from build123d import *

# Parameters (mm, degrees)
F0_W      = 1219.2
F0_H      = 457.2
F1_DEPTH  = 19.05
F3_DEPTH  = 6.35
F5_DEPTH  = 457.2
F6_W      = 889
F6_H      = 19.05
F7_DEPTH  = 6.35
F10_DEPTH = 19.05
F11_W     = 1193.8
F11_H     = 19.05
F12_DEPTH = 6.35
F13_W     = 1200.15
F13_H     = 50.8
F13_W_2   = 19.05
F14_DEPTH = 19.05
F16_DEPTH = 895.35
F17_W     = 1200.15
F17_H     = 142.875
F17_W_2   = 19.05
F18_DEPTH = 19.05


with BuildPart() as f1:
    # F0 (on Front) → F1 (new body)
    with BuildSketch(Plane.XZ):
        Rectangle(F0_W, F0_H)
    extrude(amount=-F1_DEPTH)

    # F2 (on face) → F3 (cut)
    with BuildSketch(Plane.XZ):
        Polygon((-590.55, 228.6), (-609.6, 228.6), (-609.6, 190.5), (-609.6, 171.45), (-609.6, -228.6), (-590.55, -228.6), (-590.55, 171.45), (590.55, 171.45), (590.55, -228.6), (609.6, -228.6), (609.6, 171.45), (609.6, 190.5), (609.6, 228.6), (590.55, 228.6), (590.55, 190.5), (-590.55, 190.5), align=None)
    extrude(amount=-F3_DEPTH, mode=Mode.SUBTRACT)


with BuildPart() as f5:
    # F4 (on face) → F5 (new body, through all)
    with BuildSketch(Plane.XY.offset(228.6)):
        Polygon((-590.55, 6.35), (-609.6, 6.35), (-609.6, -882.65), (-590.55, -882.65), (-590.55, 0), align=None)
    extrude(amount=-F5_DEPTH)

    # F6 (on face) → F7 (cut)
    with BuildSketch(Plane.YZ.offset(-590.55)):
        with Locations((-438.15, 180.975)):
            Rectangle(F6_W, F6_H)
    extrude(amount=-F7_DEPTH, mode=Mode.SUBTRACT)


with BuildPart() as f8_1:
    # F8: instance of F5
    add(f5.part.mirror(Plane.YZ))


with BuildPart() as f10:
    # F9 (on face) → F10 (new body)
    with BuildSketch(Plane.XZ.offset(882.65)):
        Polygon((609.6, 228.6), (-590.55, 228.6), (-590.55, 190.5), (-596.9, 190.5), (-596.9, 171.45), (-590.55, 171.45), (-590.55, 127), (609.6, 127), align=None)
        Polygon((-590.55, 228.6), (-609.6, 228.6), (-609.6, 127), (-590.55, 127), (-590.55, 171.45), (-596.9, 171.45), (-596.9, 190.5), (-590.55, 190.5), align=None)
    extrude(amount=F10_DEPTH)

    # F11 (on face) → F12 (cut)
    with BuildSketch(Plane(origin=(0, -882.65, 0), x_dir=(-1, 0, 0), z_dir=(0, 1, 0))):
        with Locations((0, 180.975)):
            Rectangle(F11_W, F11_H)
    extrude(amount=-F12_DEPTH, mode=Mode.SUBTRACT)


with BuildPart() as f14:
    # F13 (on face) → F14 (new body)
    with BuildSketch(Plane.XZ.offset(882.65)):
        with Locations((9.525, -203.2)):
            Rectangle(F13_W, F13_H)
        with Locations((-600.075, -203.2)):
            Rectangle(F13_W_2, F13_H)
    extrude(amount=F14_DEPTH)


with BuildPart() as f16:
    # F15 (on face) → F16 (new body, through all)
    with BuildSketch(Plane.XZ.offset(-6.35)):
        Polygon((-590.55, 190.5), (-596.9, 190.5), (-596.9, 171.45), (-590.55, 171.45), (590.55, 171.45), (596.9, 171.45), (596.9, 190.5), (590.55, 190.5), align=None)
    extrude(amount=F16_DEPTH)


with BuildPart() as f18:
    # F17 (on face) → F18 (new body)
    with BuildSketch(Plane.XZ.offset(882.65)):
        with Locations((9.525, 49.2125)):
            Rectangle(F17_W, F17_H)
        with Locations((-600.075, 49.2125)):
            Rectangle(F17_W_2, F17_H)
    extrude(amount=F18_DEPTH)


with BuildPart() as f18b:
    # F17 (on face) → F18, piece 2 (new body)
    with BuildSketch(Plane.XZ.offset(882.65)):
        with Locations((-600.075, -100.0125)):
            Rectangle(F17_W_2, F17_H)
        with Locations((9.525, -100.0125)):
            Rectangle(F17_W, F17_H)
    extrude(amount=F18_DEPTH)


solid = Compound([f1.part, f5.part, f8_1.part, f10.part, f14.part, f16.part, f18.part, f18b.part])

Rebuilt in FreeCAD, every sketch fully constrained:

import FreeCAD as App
import Part
import Sketcher
from FreeCAD import Vector
Q = App.Units.Quantity

doc = App.newDocument("Part")
params = doc.addObject("Spreadsheet::Sheet", "Params")
for row, (alias, value) in enumerate([
    ("sketch1_width", "48 in"),
    ("sketch1_height", "18 in"),
    ("pad1_length", "0.75 in"),
    ("sketch2_height", "18 in"),
    ("sketch2_width", "46.5 in"),
    ("sketch2_height2", "1.5 in"),
    ("sketch2_height3", "15.75 in"),
    ("pocket1_length", "0.25 in"),
    ("sketch3_height", "35 in"),
    ("sketch3_width", "0.75 in"),
    ("pad2_length", "18 in"),
    ("sketch4_width", "35 in"),
    ("sketch4_height", "0.75 in"),
    ("pocket2_length", "0.25 in"),
    ("sketch5_width", "48 in"),
    ("sketch5_height", "4 in"),
    ("pad3_length", "0.75 in"),
    ("sketch6_width", "47 in"),
    ("sketch6_height", "0.75 in"),
    ("pocket3_length", "0.25 in"),
    ("sketch7_width", "48 in"),
    ("sketch7_height", "2 in"),
    ("pad4_length", "0.75 in"),
    ("sketch8_width", "47 in"),
    ("sketch8_height", "0.75 in"),
    ("pad5_length", "35.25 in"),
    ("sketch9_width", "48 in"),
    ("sketch9_height", "5.625 in"),
    ("pad6_length", "0.75 in"),
    ("sketch10_width", "48 in"),
    ("sketch10_height", "5.625 in"),
    ("pad7_length", "0.75 in"),
], start=1):
    params.set(f"A{row}", alias)
    params.set(f"B{row}", "=" + value)
    params.setAlias(f"B{row}", alias)

body = doc.addObject("PartDesign::Body", "Body")

# Sketch on XZ plane
sketch1 = body.newObject("Sketcher::SketchObject", "Sketch")
sketch1.AttachmentSupport = (doc.getObject("XZ_Plane"), [""])
sketch1.MapMode = "FlatFace"
sketch1.addGeometry([
    Part.LineSegment(Vector(-609.6, 228.6, 0), Vector(-609.6, -228.6, 0)),
    Part.LineSegment(Vector(-609.6, -228.6, 0), Vector(609.6, -228.6, 0)),
    Part.LineSegment(Vector(609.6, -228.6, 0), Vector(609.6, 228.6, 0)),
    Part.LineSegment(Vector(609.6, 228.6, 0), Vector(-609.6, 228.6, 0)),
], False)
sketch1.addConstraint([
    Sketcher.Constraint("Coincident", 0, 2, 1, 1),
    Sketcher.Constraint("Coincident", 1, 2, 2, 1),
    Sketcher.Constraint("Coincident", 2, 2, 3, 1),
    Sketcher.Constraint("Coincident", 3, 2, 0, 1),
    Sketcher.Constraint("Vertical", 0),
    Sketcher.Constraint("Horizontal", 1),
    Sketcher.Constraint("Vertical", 2),
    Sketcher.Constraint("Horizontal", 3),
    Sketcher.Constraint("Symmetric", 0, 2, 2, 2, -1, 1),
    Sketcher.Constraint("DistanceX", 1, 1, 1, 2, Q("48 in")),
    Sketcher.Constraint("DistanceY", 0, 2, 0, 1, Q("18 in")),
])
sketch1.setExpression("Constraints[9]", "Params.sketch1_width")
sketch1.setExpression("Constraints[10]", "Params.sketch1_height")
pad1 = body.newObject("PartDesign::Pad", "Pad")
pad1.Profile = sketch1
pad1.setExpression("Length", "Params.pad1_length")
pad1.Reversed = True

# Sketch on XZ plane
sketch2 = body.newObject("Sketcher::SketchObject", "Sketch001")
sketch2.AttachmentSupport = (doc.getObject("XZ_Plane"), [""])
sketch2.MapMode = "FlatFace"
sketch2.addGeometry([
    Part.LineSegment(Vector(-590.55, 228.6, 0), Vector(-609.6, 228.6, 0)),  # 0
    Part.LineSegment(Vector(-609.6, 228.6, 0), Vector(-609.6, -228.6, 0)),  # 1
    Part.LineSegment(Vector(-609.6, -228.6, 0), Vector(-590.55, -228.6, 0)),  # 2
    Part.LineSegment(Vector(-590.55, -228.6, 0), Vector(-590.55, 171.45, 0)),  # 3
    Part.LineSegment(Vector(-590.55, 171.45, 0), Vector(590.55, 171.45, 0)),  # 4
    Part.LineSegment(Vector(590.55, 171.45, 0), Vector(590.55, -228.6, 0)),  # 5
    Part.LineSegment(Vector(590.55, -228.6, 0), Vector(609.6, -228.6, 0)),  # 6
    Part.LineSegment(Vector(609.6, -228.6, 0), Vector(609.6, 228.6, 0)),  # 7
    Part.LineSegment(Vector(609.6, 228.6, 0), Vector(590.55, 228.6, 0)),  # 8
    Part.LineSegment(Vector(590.55, 228.6, 0), Vector(590.55, 190.5, 0)),  # 9
    Part.LineSegment(Vector(590.55, 190.5, 0), Vector(-590.55, 190.5, 0)),  # 10
    Part.LineSegment(Vector(-590.55, 190.5, 0), Vector(-590.55, 228.6, 0)),  # 11
], False)
sketch2.addConstraint([
    Sketcher.Constraint("Coincident", 0, 2, 1, 1),
    Sketcher.Constraint("Coincident", 1, 2, 2, 1),
    Sketcher.Constraint("Coincident", 2, 2, 3, 1),
    Sketcher.Constraint("Coincident", 3, 2, 4, 1),
    Sketcher.Constraint("Coincident", 4, 2, 5, 1),
    Sketcher.Constraint("Coincident", 5, 2, 6, 1),
    Sketcher.Constraint("Coincident", 6, 2, 7, 1),
    Sketcher.Constraint("Coincident", 7, 2, 8, 1),
    Sketcher.Constraint("Coincident", 8, 2, 9, 1),
    Sketcher.Constraint("Coincident", 9, 2, 10, 1),
    Sketcher.Constraint("Coincident", 10, 2, 11, 1),
    Sketcher.Constraint("Coincident", 11, 2, 0, 1),
    Sketcher.Constraint("Horizontal", 0),
    Sketcher.Constraint("Vertical", 1),
    Sketcher.Constraint("Horizontal", 2),
    Sketcher.Constraint("Vertical", 3),
    Sketcher.Constraint("Horizontal", 4),
    Sketcher.Constraint("Vertical", 5),
    Sketcher.Constraint("Horizontal", 6),
    Sketcher.Constraint("Vertical", 7),
    Sketcher.Constraint("Horizontal", 8),
    Sketcher.Constraint("Vertical", 9),
    Sketcher.Constraint("Horizontal", 10),
    Sketcher.Constraint("Vertical", 11),
    Sketcher.Constraint("Symmetric", 0, 2, 6, 2, -1, 1),
    Sketcher.Constraint("Symmetric", 2, 2, 8, 2, -1, 1),
    Sketcher.Constraint("Symmetric", 2, 2, 5, 2, -2),
    Sketcher.Constraint("Vertical", 3, 2, 10, 2),
    Sketcher.Constraint("DistanceY", 1, 2, 1, 1, Q("18 in")),
    Sketcher.Constraint("DistanceX", 4, 1, 4, 2, Q("46.5 in")),
    Sketcher.Constraint("DistanceY", 9, 2, 9, 1, Q("1.5 in")),
    Sketcher.Constraint("DistanceX", 0, 2, -1, 1, Q("24 in")),
    Sketcher.Constraint("DistanceY", 3, 1, 3, 2, Q("15.75 in")),
])
sketch2.setExpression("Constraints[28]", "Params.sketch2_height")
sketch2.setExpression("Constraints[29]", "Params.sketch2_width")
sketch2.setExpression("Constraints[30]", "Params.sketch2_height2")
sketch2.setExpression("Constraints[32]", "Params.sketch2_height3")
pocket1 = body.newObject("PartDesign::Pocket", "Pocket")
pocket1.Profile = sketch2
pocket1.setExpression("Length", "Params.pocket1_length")
body2 = doc.addObject("PartDesign::Body", "Body001")

# Sketch on XY plane
sketch3 = body2.newObject("Sketcher::SketchObject", "Sketch002")
sketch3.AttachmentSupport = (doc.getObject("XY_Plane001"), [""])
sketch3.MapMode = "FlatFace"
sketch3.AttachmentOffset = App.Placement(Vector(0, 0, 9 * 25.4), App.Rotation())
sketch3.addGeometry([
    Part.LineSegment(Vector(-590.55, 6.35, 0), Vector(-609.6, 6.35, 0)),
    Part.LineSegment(Vector(-609.6, 6.35, 0), Vector(-609.6, -882.65, 0)),
    Part.LineSegment(Vector(-609.6, -882.65, 0), Vector(-590.55, -882.65, 0)),
    Part.LineSegment(Vector(-590.55, -882.65, 0), Vector(-590.55, 6.35, 0)),
], False)
sketch3.addConstraint([
    Sketcher.Constraint("Coincident", 0, 2, 1, 1),
    Sketcher.Constraint("Coincident", 1, 2, 2, 1),
    Sketcher.Constraint("Coincident", 2, 2, 3, 1),
    Sketcher.Constraint("Coincident", 3, 2, 0, 1),
    Sketcher.Constraint("Horizontal", 0),
    Sketcher.Constraint("Vertical", 1),
    Sketcher.Constraint("Horizontal", 2),
    Sketcher.Constraint("Vertical", 3),
    Sketcher.Constraint("DistanceY", 1, 2, 1, 1, Q("35 in")),
    Sketcher.Constraint("DistanceX", 0, 2, -1, 1, Q("24 in")),
    Sketcher.Constraint("DistanceX", 0, 2, 0, 1, Q("0.75 in")),
    Sketcher.Constraint("DistanceY", -1, 1, 0, 2, Q("0.25 in")),
])
sketch3.setExpression("Constraints[8]", "Params.sketch3_height")
sketch3.setExpression("Constraints[10]", "Params.sketch3_width")
pad2 = body2.newObject("PartDesign::Pad", "Pad001")
pad2.Profile = sketch3
pad2.setExpression("Length", "Params.pad2_length")
pad2.Reversed = True

# Sketch on YZ plane
sketch4 = body2.newObject("Sketcher::SketchObject", "Sketch003")
sketch4.AttachmentSupport = (doc.getObject("YZ_Plane001"), [""])
sketch4.MapMode = "FlatFace"
sketch4.AttachmentOffset = App.Placement(Vector(0, 0, -23.25 * 25.4), App.Rotation())
sketch4.addGeometry([
    Part.LineSegment(Vector(-882.65, 190.5, 0), Vector(-882.65, 171.45, 0)),
    Part.LineSegment(Vector(-882.65, 171.45, 0), Vector(6.35, 171.45, 0)),
    Part.LineSegment(Vector(6.35, 171.45, 0), Vector(6.35, 190.5, 0)),
    Part.LineSegment(Vector(6.35, 190.5, 0), Vector(-882.65, 190.5, 0)),
], False)
sketch4.addConstraint([
    Sketcher.Constraint("Coincident", 0, 2, 1, 1),
    Sketcher.Constraint("Coincident", 1, 2, 2, 1),
    Sketcher.Constraint("Coincident", 2, 2, 3, 1),
    Sketcher.Constraint("Coincident", 3, 2, 0, 1),
    Sketcher.Constraint("Vertical", 0),
    Sketcher.Constraint("Horizontal", 1),
    Sketcher.Constraint("Vertical", 2),
    Sketcher.Constraint("Horizontal", 3),
    Sketcher.Constraint("DistanceX", 1, 1, 1, 2, Q("35 in")),
    Sketcher.Constraint("DistanceY", 0, 2, 0, 1, Q("0.75 in")),
    Sketcher.Constraint("DistanceY", -1, 1, 2, 2, Q("7.5 in")),
    Sketcher.Constraint("DistanceX", 0, 2, -1, 1, Q("34.75 in")),
])
sketch4.setExpression("Constraints[8]", "Params.sketch4_width")
sketch4.setExpression("Constraints[9]", "Params.sketch4_height")
pocket2 = body2.newObject("PartDesign::Pocket", "Pocket001")
pocket2.Profile = sketch4
pocket2.setExpression("Length", "Params.pocket2_length")
body3 = doc.addObject("PartDesign::Body", "Body002")
doc.recompute()

mirroring = doc.addObject("Part::Mirroring", "Mirroring")
mirroring.Source = body2
mirroring.Base = Vector(0, 0, 0)
mirroring.Normal = Vector(1, 0, 0)
body3.BaseFeature = mirroring
doc.recompute()
body4 = doc.addObject("PartDesign::Body", "Body003")

# Sketch on XZ plane
sketch5 = body4.newObject("Sketcher::SketchObject", "Sketch004")
sketch5.AttachmentSupport = (doc.getObject("XZ_Plane003"), [""])
sketch5.MapMode = "FlatFace"
sketch5.AttachmentOffset = App.Placement(Vector(0, 0, 34.75 * 25.4), App.Rotation())
sketch5.addGeometry([
    Part.LineSegment(Vector(609.6, 228.6, 0), Vector(-609.6, 228.6, 0)),
    Part.LineSegment(Vector(-609.6, 228.6, 0), Vector(-609.6, 127, 0)),
    Part.LineSegment(Vector(-609.6, 127, 0), Vector(609.6, 127, 0)),
    Part.LineSegment(Vector(609.6, 127, 0), Vector(609.6, 228.6, 0)),
], False)
sketch5.addConstraint([
    Sketcher.Constraint("Coincident", 0, 2, 1, 1),
    Sketcher.Constraint("Coincident", 1, 2, 2, 1),
    Sketcher.Constraint("Coincident", 2, 2, 3, 1),
    Sketcher.Constraint("Coincident", 3, 2, 0, 1),
    Sketcher.Constraint("Horizontal", 0),
    Sketcher.Constraint("Vertical", 1),
    Sketcher.Constraint("Horizontal", 2),
    Sketcher.Constraint("Vertical", 3),
    Sketcher.Constraint("DistanceX", 0, 2, 0, 1, Q("48 in")),
    Sketcher.Constraint("DistanceY", 1, 2, 1, 1, Q("4 in")),
    Sketcher.Constraint("DistanceX", 0, 2, -1, 1, Q("24 in")),
    Sketcher.Constraint("DistanceY", -1, 1, 0, 2, Q("9 in")),
])
sketch5.setExpression("Constraints[8]", "Params.sketch5_width")
sketch5.setExpression("Constraints[9]", "Params.sketch5_height")
pad3 = body4.newObject("PartDesign::Pad", "Pad002")
pad3.Profile = sketch5
pad3.setExpression("Length", "Params.pad3_length")

# Sketch on XZ plane
sketch6 = body4.newObject("Sketcher::SketchObject", "Sketch005")
sketch6.AttachmentSupport = (doc.getObject("XZ_Plane003"), [""])
sketch6.MapMode = "FlatFace"
sketch6.AttachmentOffset = App.Placement(Vector(0, 0, 34.75 * 25.4), App.Rotation())
sketch6.addGeometry([
    Part.LineSegment(Vector(596.9, 190.5, 0), Vector(596.9, 171.45, 0)),
    Part.LineSegment(Vector(596.9, 171.45, 0), Vector(-596.9, 171.45, 0)),
    Part.LineSegment(Vector(-596.9, 171.45, 0), Vector(-596.9, 190.5, 0)),
    Part.LineSegment(Vector(-596.9, 190.5, 0), Vector(596.9, 190.5, 0)),
], False)
sketch6.addConstraint([
    Sketcher.Constraint("Coincident", 0, 2, 1, 1),
    Sketcher.Constraint("Coincident", 1, 2, 2, 1),
    Sketcher.Constraint("Coincident", 2, 2, 3, 1),
    Sketcher.Constraint("Coincident", 3, 2, 0, 1),
    Sketcher.Constraint("Vertical", 0),
    Sketcher.Constraint("Horizontal", 1),
    Sketcher.Constraint("Vertical", 2),
    Sketcher.Constraint("Horizontal", 3),
    Sketcher.Constraint("DistanceX", 1, 2, 1, 1, Q("47 in")),
    Sketcher.Constraint("DistanceY", 0, 2, 0, 1, Q("0.75 in")),
    Sketcher.Constraint("DistanceX", -1, 1, 0, 2, Q("23.5 in")),
    Sketcher.Constraint("DistanceY", -1, 1, 2, 2, Q("7.5 in")),
])
sketch6.setExpression("Constraints[8]", "Params.sketch6_width")
sketch6.setExpression("Constraints[9]", "Params.sketch6_height")
pocket3 = body4.newObject("PartDesign::Pocket", "Pocket002")
pocket3.Profile = sketch6
pocket3.setExpression("Length", "Params.pocket3_length")
pocket3.Reversed = True
body5 = doc.addObject("PartDesign::Body", "Body004")

# Sketch on XZ plane
sketch7 = body5.newObject("Sketcher::SketchObject", "Sketch006")
sketch7.AttachmentSupport = (doc.getObject("XZ_Plane004"), [""])
sketch7.MapMode = "FlatFace"
sketch7.AttachmentOffset = App.Placement(Vector(0, 0, 34.75 * 25.4), App.Rotation())
sketch7.addGeometry([
    Part.LineSegment(Vector(609.6, -228.6, 0), Vector(609.6, -177.8, 0)),
    Part.LineSegment(Vector(609.6, -177.8, 0), Vector(-609.6, -177.8, 0)),
    Part.LineSegment(Vector(-609.6, -177.8, 0), Vector(-609.6, -228.6, 0)),
    Part.LineSegment(Vector(-609.6, -228.6, 0), Vector(609.6, -228.6, 0)),
], False)
sketch7.addConstraint([
    Sketcher.Constraint("Coincident", 0, 2, 1, 1),
    Sketcher.Constraint("Coincident", 1, 2, 2, 1),
    Sketcher.Constraint("Coincident", 2, 2, 3, 1),
    Sketcher.Constraint("Coincident", 3, 2, 0, 1),
    Sketcher.Constraint("Vertical", 0),
    Sketcher.Constraint("Horizontal", 1),
    Sketcher.Constraint("Vertical", 2),
    Sketcher.Constraint("Horizontal", 3),
    Sketcher.Constraint("DistanceX", 1, 2, 1, 1, Q("48 in")),
    Sketcher.Constraint("DistanceY", 0, 1, 0, 2, Q("2 in")),
    Sketcher.Constraint("DistanceX", -1, 1, 0, 2, Q("24 in")),
    Sketcher.Constraint("DistanceY", 0, 2, -1, 1, Q("7 in")),
])
sketch7.setExpression("Constraints[8]", "Params.sketch7_width")
sketch7.setExpression("Constraints[9]", "Params.sketch7_height")
pad4 = body5.newObject("PartDesign::Pad", "Pad003")
pad4.Profile = sketch7
pad4.setExpression("Length", "Params.pad4_length")
body6 = doc.addObject("PartDesign::Body", "Body005")

# Sketch on XZ plane
sketch8 = body6.newObject("Sketcher::SketchObject", "Sketch007")
sketch8.AttachmentSupport = (doc.getObject("XZ_Plane005"), [""])
sketch8.MapMode = "FlatFace"
sketch8.AttachmentOffset = App.Placement(Vector(0, 0, -0.25 * 25.4), App.Rotation())
sketch8.addGeometry([
    Part.LineSegment(Vector(-596.9, 190.5, 0), Vector(-596.9, 171.45, 0)),
    Part.LineSegment(Vector(-596.9, 171.45, 0), Vector(596.9, 171.45, 0)),
    Part.LineSegment(Vector(596.9, 171.45, 0), Vector(596.9, 190.5, 0)),
    Part.LineSegment(Vector(596.9, 190.5, 0), Vector(-596.9, 190.5, 0)),
], False)
sketch8.addConstraint([
    Sketcher.Constraint("Coincident", 0, 2, 1, 1),
    Sketcher.Constraint("Coincident", 1, 2, 2, 1),
    Sketcher.Constraint("Coincident", 2, 2, 3, 1),
    Sketcher.Constraint("Coincident", 3, 2, 0, 1),
    Sketcher.Constraint("Vertical", 0),
    Sketcher.Constraint("Horizontal", 1),
    Sketcher.Constraint("Vertical", 2),
    Sketcher.Constraint("Horizontal", 3),
    Sketcher.Constraint("DistanceX", 1, 1, 1, 2, Q("47 in")),
    Sketcher.Constraint("DistanceY", 0, 2, 0, 1, Q("0.75 in")),
    Sketcher.Constraint("DistanceX", 0, 2, -1, 1, Q("23.5 in")),
    Sketcher.Constraint("DistanceY", -1, 1, 2, 2, Q("7.5 in")),
])
sketch8.setExpression("Constraints[8]", "Params.sketch8_width")
sketch8.setExpression("Constraints[9]", "Params.sketch8_height")
pad5 = body6.newObject("PartDesign::Pad", "Pad004")
pad5.Profile = sketch8
pad5.setExpression("Length", "Params.pad5_length")
body7 = doc.addObject("PartDesign::Body", "Body006")

# Sketch on XZ plane
sketch9 = body7.newObject("Sketcher::SketchObject", "Sketch008")
sketch9.AttachmentSupport = (doc.getObject("XZ_Plane006"), [""])
sketch9.MapMode = "FlatFace"
sketch9.AttachmentOffset = App.Placement(Vector(0, 0, 34.75 * 25.4), App.Rotation())
sketch9.addGeometry([
    Part.LineSegment(Vector(609.6, -22.225, 0), Vector(609.6, 120.65, 0)),
    Part.LineSegment(Vector(609.6, 120.65, 0), Vector(-609.6, 120.65, 0)),
    Part.LineSegment(Vector(-609.6, 120.65, 0), Vector(-609.6, -22.225, 0)),
    Part.LineSegment(Vector(-609.6, -22.225, 0), Vector(609.6, -22.225, 0)),
], False)
sketch9.addConstraint([
    Sketcher.Constraint("Coincident", 0, 2, 1, 1),
    Sketcher.Constraint("Coincident", 1, 2, 2, 1),
    Sketcher.Constraint("Coincident", 2, 2, 3, 1),
    Sketcher.Constraint("Coincident", 3, 2, 0, 1),
    Sketcher.Constraint("Vertical", 0),
    Sketcher.Constraint("Horizontal", 1),
    Sketcher.Constraint("Vertical", 2),
    Sketcher.Constraint("Horizontal", 3),
    Sketcher.Constraint("DistanceX", 1, 2, 1, 1, Q("48 in")),
    Sketcher.Constraint("DistanceX", -1, 1, 0, 2, Q("24 in")),
    Sketcher.Constraint("DistanceY", 0, 1, 0, 2, Q("5.625 in")),
    Sketcher.Constraint("DistanceY", -1, 1, 0, 2, Q("4.75 in")),
])
sketch9.setExpression("Constraints[8]", "Params.sketch9_width")
sketch9.setExpression("Constraints[10]", "Params.sketch9_height")
pad6 = body7.newObject("PartDesign::Pad", "Pad005")
pad6.Profile = sketch9
pad6.setExpression("Length", "Params.pad6_length")
body8 = doc.addObject("PartDesign::Body", "Body007")

# Sketch on XZ plane
sketch10 = body8.newObject("Sketcher::SketchObject", "Sketch009")
sketch10.AttachmentSupport = (doc.getObject("XZ_Plane007"), [""])
sketch10.MapMode = "FlatFace"
sketch10.AttachmentOffset = App.Placement(Vector(0, 0, 34.75 * 25.4), App.Rotation())
sketch10.addGeometry([
    Part.LineSegment(Vector(-609.6, -28.575, 0), Vector(-609.6, -171.45, 0)),
    Part.LineSegment(Vector(-609.6, -171.45, 0), Vector(609.6, -171.45, 0)),
    Part.LineSegment(Vector(609.6, -171.45, 0), Vector(609.6, -28.575, 0)),
    Part.LineSegment(Vector(609.6, -28.575, 0), Vector(-609.6, -28.575, 0)),
], False)
sketch10.addConstraint([
    Sketcher.Constraint("Coincident", 0, 2, 1, 1),
    Sketcher.Constraint("Coincident", 1, 2, 2, 1),
    Sketcher.Constraint("Coincident", 2, 2, 3, 1),
    Sketcher.Constraint("Coincident", 3, 2, 0, 1),
    Sketcher.Constraint("Vertical", 0),
    Sketcher.Constraint("Horizontal", 1),
    Sketcher.Constraint("Vertical", 2),
    Sketcher.Constraint("Horizontal", 3),
    Sketcher.Constraint("DistanceX", 1, 1, 1, 2, Q("48 in")),
    Sketcher.Constraint("DistanceX", 0, 2, -1, 1, Q("24 in")),
    Sketcher.Constraint("DistanceY", 0, 2, 0, 1, Q("5.625 in")),
    Sketcher.Constraint("DistanceY", 0, 2, -1, 1, Q("6.75 in")),
])
sketch10.setExpression("Constraints[8]", "Params.sketch10_width")
sketch10.setExpression("Constraints[10]", "Params.sketch10_height")
pad7 = body8.newObject("PartDesign::Pad", "Pad006")
pad7.Profile = sketch10
pad7.setExpression("Length", "Params.pad7_length")
mirroring.Visibility = False

doc.recompute()
